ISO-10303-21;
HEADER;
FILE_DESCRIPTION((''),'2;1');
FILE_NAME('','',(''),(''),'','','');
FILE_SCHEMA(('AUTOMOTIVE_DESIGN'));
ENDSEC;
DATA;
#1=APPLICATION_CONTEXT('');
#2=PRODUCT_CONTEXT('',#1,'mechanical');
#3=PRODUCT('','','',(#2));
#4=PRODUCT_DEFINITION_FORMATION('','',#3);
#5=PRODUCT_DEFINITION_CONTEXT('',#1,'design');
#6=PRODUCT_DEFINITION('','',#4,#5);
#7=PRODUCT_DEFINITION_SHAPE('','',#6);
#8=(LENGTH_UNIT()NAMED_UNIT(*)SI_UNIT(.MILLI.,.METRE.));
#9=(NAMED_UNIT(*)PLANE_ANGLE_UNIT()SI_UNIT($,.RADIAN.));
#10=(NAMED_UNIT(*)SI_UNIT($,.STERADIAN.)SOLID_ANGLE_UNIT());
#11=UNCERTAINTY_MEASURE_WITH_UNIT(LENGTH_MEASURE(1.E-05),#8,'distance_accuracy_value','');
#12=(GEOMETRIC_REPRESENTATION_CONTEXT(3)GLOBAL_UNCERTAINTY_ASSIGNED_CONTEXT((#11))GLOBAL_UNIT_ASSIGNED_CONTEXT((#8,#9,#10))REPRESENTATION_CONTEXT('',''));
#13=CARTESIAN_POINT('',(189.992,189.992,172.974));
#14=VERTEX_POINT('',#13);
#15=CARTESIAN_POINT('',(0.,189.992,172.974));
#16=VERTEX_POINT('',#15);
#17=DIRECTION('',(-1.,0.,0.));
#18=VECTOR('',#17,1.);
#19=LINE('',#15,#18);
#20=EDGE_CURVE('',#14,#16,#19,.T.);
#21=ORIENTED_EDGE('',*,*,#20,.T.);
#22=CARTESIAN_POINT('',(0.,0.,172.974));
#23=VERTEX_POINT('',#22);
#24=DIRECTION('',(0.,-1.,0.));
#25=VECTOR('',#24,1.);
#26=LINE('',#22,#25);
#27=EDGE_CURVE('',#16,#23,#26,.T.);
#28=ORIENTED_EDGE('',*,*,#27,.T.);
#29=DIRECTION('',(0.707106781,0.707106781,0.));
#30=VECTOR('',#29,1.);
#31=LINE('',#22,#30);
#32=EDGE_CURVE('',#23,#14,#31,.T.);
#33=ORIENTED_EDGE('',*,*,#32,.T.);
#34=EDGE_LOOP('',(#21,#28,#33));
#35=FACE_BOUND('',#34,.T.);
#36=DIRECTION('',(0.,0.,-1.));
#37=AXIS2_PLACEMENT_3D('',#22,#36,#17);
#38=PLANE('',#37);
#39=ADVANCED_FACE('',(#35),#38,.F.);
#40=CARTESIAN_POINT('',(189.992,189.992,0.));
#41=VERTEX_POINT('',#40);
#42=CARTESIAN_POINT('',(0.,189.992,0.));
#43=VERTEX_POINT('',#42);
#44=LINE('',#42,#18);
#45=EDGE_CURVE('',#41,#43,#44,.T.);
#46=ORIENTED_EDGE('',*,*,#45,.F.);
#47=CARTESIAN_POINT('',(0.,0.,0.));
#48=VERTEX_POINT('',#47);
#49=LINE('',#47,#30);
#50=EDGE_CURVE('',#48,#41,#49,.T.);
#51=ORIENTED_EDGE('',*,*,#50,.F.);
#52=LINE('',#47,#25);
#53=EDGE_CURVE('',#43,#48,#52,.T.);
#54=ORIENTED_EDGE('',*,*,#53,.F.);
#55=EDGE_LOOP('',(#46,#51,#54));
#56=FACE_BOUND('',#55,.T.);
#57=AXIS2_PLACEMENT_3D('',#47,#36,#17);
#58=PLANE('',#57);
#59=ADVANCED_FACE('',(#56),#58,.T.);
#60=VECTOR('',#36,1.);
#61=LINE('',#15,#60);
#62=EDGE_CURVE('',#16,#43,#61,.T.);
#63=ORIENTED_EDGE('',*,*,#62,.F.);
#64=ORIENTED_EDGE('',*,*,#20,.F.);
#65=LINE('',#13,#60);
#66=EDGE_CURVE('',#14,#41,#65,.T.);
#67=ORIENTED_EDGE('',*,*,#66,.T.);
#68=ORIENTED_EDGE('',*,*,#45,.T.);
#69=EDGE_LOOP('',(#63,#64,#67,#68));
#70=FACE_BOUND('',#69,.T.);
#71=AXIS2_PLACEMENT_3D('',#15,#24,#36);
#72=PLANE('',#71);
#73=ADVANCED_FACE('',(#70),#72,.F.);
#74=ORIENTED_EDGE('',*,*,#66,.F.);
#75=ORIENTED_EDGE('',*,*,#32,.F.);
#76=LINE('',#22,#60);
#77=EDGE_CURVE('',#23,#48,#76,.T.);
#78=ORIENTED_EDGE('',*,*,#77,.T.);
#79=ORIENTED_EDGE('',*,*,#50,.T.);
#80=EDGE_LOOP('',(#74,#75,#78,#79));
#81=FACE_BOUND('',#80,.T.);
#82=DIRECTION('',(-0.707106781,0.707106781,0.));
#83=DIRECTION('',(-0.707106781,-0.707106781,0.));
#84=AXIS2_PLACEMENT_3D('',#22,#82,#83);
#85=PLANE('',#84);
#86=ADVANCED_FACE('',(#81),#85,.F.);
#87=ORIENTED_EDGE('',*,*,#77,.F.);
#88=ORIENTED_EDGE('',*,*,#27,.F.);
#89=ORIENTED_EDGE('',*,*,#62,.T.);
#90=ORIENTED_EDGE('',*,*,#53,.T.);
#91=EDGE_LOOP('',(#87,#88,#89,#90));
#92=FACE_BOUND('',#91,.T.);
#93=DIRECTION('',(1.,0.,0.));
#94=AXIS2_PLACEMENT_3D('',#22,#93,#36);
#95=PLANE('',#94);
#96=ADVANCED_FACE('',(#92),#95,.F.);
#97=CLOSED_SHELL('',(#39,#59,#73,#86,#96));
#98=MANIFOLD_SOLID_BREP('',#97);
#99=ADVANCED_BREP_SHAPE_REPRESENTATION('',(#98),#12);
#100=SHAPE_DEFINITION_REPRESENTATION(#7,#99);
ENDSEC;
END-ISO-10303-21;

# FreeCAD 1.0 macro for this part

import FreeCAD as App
import Part
import Sketcher
from FreeCAD import Vector
Q = App.Units.Quantity

doc = App.newDocument("Part")
params = doc.addObject("Spreadsheet::Sheet", "Params")
for row, (alias, value) in enumerate([
    ("sketch1_width", "7.48 in"),
    ("pad1_length", "6.81 in"),
], start=1):
    params.set(f"A{row}", alias)
    params.set(f"B{row}", "=" + value)
    params.setAlias(f"B{row}", alias)

body = doc.addObject("PartDesign::Body", "Body")

# Sketch on XY plane
sketch1 = body.newObject("Sketcher::SketchObject", "Sketch")
sketch1.AttachmentSupport = (doc.getObject("XY_Plane"), [""])
sketch1.MapMode = "FlatFace"
sketch1.addGeometry([
    Part.LineSegment(Vector(0, 0, 0), Vector(190, 190, 0)),
    Part.LineSegment(Vector(190, 190, 0), Vector(0, 190, 0)),
    Part.LineSegment(Vector(0, 190, 0), Vector(0, 0, 0)),
], False)
sketch1.addConstraint([
    Sketcher.Constraint("Coincident", 0, 2, 1, 1),
    Sketcher.Constraint("Coincident", 1, 2, 2, 1),
    Sketcher.Constraint("Coincident", 2, 2, 0, 1),
    Sketcher.Constraint("Horizontal", 1),
    Sketcher.Constraint("Vertical", 2),
    Sketcher.Constraint("Coincident", 2, 2, -1, 1),
    Sketcher.Constraint("Equal", 1, 2),
    Sketcher.Constraint("DistanceX", 1, 2, 1, 1, Q("7.48 in")),
])
sketch1.setExpression("Constraints[7]", "Params.sketch1_width")
pad1 = body.newObject("PartDesign::Pad", "Pad")
pad1.Profile = sketch1
pad1.setExpression("Length", "Params.pad1_length")

doc.recompute()
